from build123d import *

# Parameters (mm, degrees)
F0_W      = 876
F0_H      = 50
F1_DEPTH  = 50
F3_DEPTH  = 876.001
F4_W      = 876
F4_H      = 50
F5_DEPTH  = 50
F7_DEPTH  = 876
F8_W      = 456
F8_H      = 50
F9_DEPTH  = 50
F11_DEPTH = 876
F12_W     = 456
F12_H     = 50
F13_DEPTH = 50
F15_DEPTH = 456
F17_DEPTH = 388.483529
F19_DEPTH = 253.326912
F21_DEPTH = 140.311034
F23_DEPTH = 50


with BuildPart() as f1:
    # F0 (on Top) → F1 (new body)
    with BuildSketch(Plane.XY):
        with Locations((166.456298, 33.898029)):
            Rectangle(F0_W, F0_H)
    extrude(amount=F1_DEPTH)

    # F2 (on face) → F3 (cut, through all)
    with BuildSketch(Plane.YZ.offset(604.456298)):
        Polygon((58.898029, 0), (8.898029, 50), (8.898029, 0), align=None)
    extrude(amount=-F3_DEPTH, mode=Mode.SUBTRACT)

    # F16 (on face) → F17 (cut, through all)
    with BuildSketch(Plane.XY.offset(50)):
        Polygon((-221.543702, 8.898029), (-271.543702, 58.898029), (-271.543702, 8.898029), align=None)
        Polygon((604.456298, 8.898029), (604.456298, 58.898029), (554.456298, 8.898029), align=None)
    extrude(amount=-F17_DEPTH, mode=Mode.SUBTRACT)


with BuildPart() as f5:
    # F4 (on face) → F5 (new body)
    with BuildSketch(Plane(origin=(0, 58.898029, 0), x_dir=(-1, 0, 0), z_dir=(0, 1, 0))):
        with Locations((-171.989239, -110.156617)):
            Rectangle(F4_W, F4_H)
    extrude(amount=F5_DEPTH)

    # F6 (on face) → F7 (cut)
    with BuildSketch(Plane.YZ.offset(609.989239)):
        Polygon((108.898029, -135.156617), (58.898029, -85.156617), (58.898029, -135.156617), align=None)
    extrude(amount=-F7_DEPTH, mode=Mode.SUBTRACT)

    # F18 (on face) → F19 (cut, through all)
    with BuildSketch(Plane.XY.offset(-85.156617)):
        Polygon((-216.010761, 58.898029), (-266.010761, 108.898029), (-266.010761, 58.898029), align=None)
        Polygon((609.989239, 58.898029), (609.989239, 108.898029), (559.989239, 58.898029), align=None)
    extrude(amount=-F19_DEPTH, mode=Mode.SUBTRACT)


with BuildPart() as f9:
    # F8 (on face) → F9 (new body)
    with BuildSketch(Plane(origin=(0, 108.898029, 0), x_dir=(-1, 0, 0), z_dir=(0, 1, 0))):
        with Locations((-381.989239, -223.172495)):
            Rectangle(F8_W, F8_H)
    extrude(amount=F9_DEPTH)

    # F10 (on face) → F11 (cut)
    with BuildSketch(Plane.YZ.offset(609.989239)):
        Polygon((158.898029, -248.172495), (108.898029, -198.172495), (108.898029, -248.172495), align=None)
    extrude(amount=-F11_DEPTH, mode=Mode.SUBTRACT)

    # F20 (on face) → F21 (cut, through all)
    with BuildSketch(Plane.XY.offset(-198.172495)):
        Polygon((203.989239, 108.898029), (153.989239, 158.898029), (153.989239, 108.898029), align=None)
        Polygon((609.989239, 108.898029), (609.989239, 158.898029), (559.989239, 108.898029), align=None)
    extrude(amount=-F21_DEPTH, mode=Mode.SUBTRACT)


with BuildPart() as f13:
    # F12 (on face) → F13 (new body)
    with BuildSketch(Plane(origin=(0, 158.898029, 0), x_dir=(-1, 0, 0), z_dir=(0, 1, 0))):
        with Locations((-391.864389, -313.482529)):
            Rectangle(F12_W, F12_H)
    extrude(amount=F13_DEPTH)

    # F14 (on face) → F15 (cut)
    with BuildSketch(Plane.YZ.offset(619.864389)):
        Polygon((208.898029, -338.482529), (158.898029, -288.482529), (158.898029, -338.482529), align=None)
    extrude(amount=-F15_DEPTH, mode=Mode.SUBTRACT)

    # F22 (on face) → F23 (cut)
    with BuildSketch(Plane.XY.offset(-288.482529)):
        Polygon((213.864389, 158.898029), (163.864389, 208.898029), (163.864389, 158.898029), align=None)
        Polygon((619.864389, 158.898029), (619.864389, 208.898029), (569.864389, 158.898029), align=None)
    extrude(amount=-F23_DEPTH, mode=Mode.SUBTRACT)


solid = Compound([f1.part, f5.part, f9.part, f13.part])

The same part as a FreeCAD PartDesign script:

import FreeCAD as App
import Part
import Sketcher


def add_polygon(sketch, points):
    """Adds a closed chain of lines whose ends are joined by coincident constraints."""
    first, n = sketch.GeometryCount, len(points)
    for a, b in zip(points, points[1:] + points[:1]):
        sketch.addGeometry(Part.LineSegment(App.Vector(*a, 0), App.Vector(*b, 0)), False)
    for i in range(n):
        sketch.addConstraint(Sketcher.Constraint("Coincident", first + i, 2, first + (i + 1) % n, 1))

doc = App.newDocument("Part")
body = doc.addObject("PartDesign::Body", "Body")

# Sketch on XY plane
sketch1 = body.newObject("Sketcher::SketchObject", "Sketch")
sketch1.AttachmentSupport = (doc.getObject("XY_Plane"), [""])
sketch1.MapMode = "FlatFace"
add_polygon(sketch1, [(-272, 59), (-272, 9), (604, 9), (604, 59)])  # lines 0-3
sketch1.addConstraint([
    Sketcher.Constraint("Vertical", 0),
    Sketcher.Constraint("Horizontal", 1),
    Sketcher.Constraint("Vertical", 2),
    Sketcher.Constraint("Horizontal", 3),
    Sketcher.Constraint("DistanceX", 1, 1, 1, 2, 876.0),
    Sketcher.Constraint("DistanceY", 0, 2, 0, 1, 50.0),
    Sketcher.Constraint("DistanceX", 0, 2, -1, 1, 271.543702),
    Sketcher.Constraint("DistanceY", -1, 1, 0, 2, 8.898029),
])
pad1 = body.newObject("PartDesign::Pad", "Pad")
pad1.Profile = sketch1
pad1.Length = 50

# Sketch on YZ plane
sketch2 = body.newObject("Sketcher::SketchObject", "Sketch001")
sketch2.AttachmentSupport = (doc.getObject("YZ_Plane"), [""])
sketch2.MapMode = "FlatFace"
sketch2.AttachmentOffset = App.Placement(App.Vector(0, 0, 604.456298), App.Rotation())
add_polygon(sketch2, [(59, 0), (9, 50), (9, 0)])  # lines 0-2
sketch2.addConstraint([
    Sketcher.Constraint("Vertical", 1),
    Sketcher.Constraint("Horizontal", 2),
    Sketcher.Constraint("PointOnObject", 1, 2, -1),
    Sketcher.Constraint("Equal", 2, 1),
    Sketcher.Constraint("DistanceX", 2, 1, 2, 2, 50.0),
    Sketcher.Constraint("DistanceX", -1, 1, 0, 2, 8.898029),
])
pocket1 = body.newObject("PartDesign::Pocket", "Pocket")
pocket1.Profile = sketch2
pocket1.Type = "ThroughAll"

# Sketch on XY plane
sketch3 = body.newObject("Sketcher::SketchObject", "Sketch002")
sketch3.AttachmentSupport = (doc.getObject("XY_Plane"), [""])
sketch3.MapMode = "FlatFace"
sketch3.AttachmentOffset = App.Placement(App.Vector(0, 0, 50), App.Rotation())
add_polygon(sketch3, [(-222, 9), (-272, 59), (-272, 9)])  # lines 0-2
add_polygon(sketch3, [(604, 9), (604, 59), (554, 9)])  # lines 3-5
sketch3.addConstraint([
    Sketcher.Constraint("Vertical", 1),
    Sketcher.Constraint("Horizontal", 2),
    Sketcher.Constraint("Vertical", 3),
    Sketcher.Constraint("Horizontal", 5),
    Sketcher.Constraint("Perpendicular", 0, 4),
    Sketcher.Constraint("Horizontal", 0, 2, 3, 2),
    Sketcher.Constraint("Horizontal", 2, 2, 4, 2),
    Sketcher.Constraint("Equal", 2, 5),
    Sketcher.Constraint("DistanceX", 2, 1, 2, 2, 50.0),
    Sketcher.Constraint("DistanceX", 2, 2, 3, 2, 826.0),
    Sketcher.Constraint("DistanceX", 0, 2, -1, 1, 271.543702),
    Sketcher.Constraint("DistanceY", -1, 1, 0, 2, 58.898029),
])
pocket2 = body.newObject("PartDesign::Pocket", "Pocket001")
pocket2.Profile = sketch3
pocket2.Type = "ThroughAll"
body2 = doc.addObject("PartDesign::Body", "Body001")

# Sketch on XZ plane
sketch4 = body2.newObject("Sketcher::SketchObject", "Sketch003")
sketch4.AttachmentSupport = (doc.getObject("XZ_Plane001"), [""])
sketch4.MapMode = "FlatFace"
sketch4.AttachmentOffset = App.Placement(App.Vector(0, 0, -58.898029), App.Rotation())
add_polygon(sketch4, [(610, -85), (610, -135), (-266, -135), (-266, -85)])  # lines 0-3
sketch4.addConstraint([
    Sketcher.Constraint("Vertical", 0),
    Sketcher.Constraint("Horizontal", 1),
    Sketcher.Constraint("Vertical", 2),
    Sketcher.Constraint("Horizontal", 3),
    Sketcher.Constraint("DistanceX", 1, 2, 1, 1, 876.0),
    Sketcher.Constraint("DistanceY", 0, 2, 0, 1, 50.0),
    Sketcher.Constraint("DistanceX", -1, 1, 0, 2, 609.989239),
    Sketcher.Constraint("DistanceY", 0, 2, -1, 1, 135.156617),
])
pad2 = body2.newObject("PartDesign::Pad", "Pad001")
pad2.Profile = sketch4
pad2.Length = 50
pad2.Reversed = True

# Sketch on YZ plane
sketch5 = body2.newObject("Sketcher::SketchObject", "Sketch004")
sketch5.AttachmentSupport = (doc.getObject("YZ_Plane001"), [""])
sketch5.MapMode = "FlatFace"
sketch5.AttachmentOffset = App.Placement(App.Vector(0, 0, 609.989239), App.Rotation())
add_polygon(sketch5, [(109, -135), (59, -85), (59, -135)])  # lines 0-2
sketch5.addConstraint([
    Sketcher.Constraint("Vertical", 1),
    Sketcher.Constraint("Horizontal", 2),
    Sketcher.Constraint("Equal", 2, 1),
    Sketcher.Constraint("DistanceX", 2, 1, 2, 2, 50.0),
    Sketcher.Constraint("DistanceX", -1, 1, 0, 2, 58.898029),
    Sketcher.Constraint("DistanceY", 0, 2, -1, 1, 85.156617),
])
pocket3 = body2.newObject("PartDesign::Pocket", "Pocket002")
pocket3.Profile = sketch5
pocket3.Length = 876

# Sketch on XY plane
sketch6 = body2.newObject("Sketcher::SketchObject", "Sketch005")
sketch6.AttachmentSupport = (doc.getObject("XY_Plane001"), [""])
sketch6.MapMode = "FlatFace"
sketch6.AttachmentOffset = App.Placement(App.Vector(0, 0, -85.156617), App.Rotation())
add_polygon(sketch6, [(-216, 59), (-266, 109), (-266, 59)])  # lines 0-2
add_polygon(sketch6, [(610, 59), (610, 109), (560, 59)])  # lines 3-5
sketch6.addConstraint([
    Sketcher.Constraint("Vertical", 1),
    Sketcher.Constraint("Horizontal", 2),
    Sketcher.Constraint("Vertical", 3),
    Sketcher.Constraint("Horizontal", 5),
    Sketcher.Constraint("Perpendicular", 0, 4),
    Sketcher.Constraint("Horizontal", 0, 2, 3, 2),
    Sketcher.Constraint("Horizontal", 2, 2, 4, 2),
    Sketcher.Constraint("Equal", 2, 5),
    Sketcher.Constraint("DistanceX", 2, 1, 2, 2, 50.0),
    Sketcher.Constraint("DistanceX", 2, 2, 3, 2, 826.0),
    Sketcher.Constraint("DistanceX", 0, 2, -1, 1, 266.010761),
    Sketcher.Constraint("DistanceY", -1, 1, 0, 2, 108.898029),
])
pocket4 = body2.newObject("PartDesign::Pocket", "Pocket003")
pocket4.Profile = sketch6
pocket4.Type = "ThroughAll"
body3 = doc.addObject("PartDesign::Body", "Body002")

# Sketch on XZ plane
sketch7 = body3.newObject("Sketcher::SketchObject", "Sketch006")
sketch7.AttachmentSupport = (doc.getObject("XZ_Plane002"), [""])
sketch7.MapMode = "FlatFace"
sketch7.AttachmentOffset = App.Placement(App.Vector(0, 0, -108.898029), App.Rotation())
add_polygon(sketch7, [(610, -198), (610, -248), (154, -248), (154, -198)])  # lines 0-3
sketch7.addConstraint([
    Sketcher.Constraint("Vertical", 0),
    Sketcher.Constraint("Horizontal", 1),
    Sketcher.Constraint("Vertical", 2),
    Sketcher.Constraint("Horizontal", 3),
    Sketcher.Constraint("DistanceX", 1, 2, 1, 1, 456.0),
    Sketcher.Constraint("DistanceY", 0, 2, 0, 1, 50.0),
    Sketcher.Constraint("DistanceX", -1, 1, 0, 2, 609.989239),
    Sketcher.Constraint("DistanceY", 0, 2, -1, 1, 248.172495),
])
pad3 = body3.newObject("PartDesign::Pad", "Pad002")
pad3.Profile = sketch7
pad3.Length = 50
pad3.Reversed = True

# Sketch on YZ plane
sketch8 = body3.newObject("Sketcher::SketchObject", "Sketch007")
sketch8.AttachmentSupport = (doc.getObject("YZ_Plane002"), [""])
sketch8.MapMode = "FlatFace"
sketch8.AttachmentOffset = App.Placement(App.Vector(0, 0, 609.989239), App.Rotation())
add_polygon(sketch8, [(159, -248), (109, -198), (109, -248)])  # lines 0-2
sketch8.addConstraint([
    Sketcher.Constraint("Vertical", 1),
    Sketcher.Constraint("Horizontal", 2),
    Sketcher.Constraint("Equal", 2, 1),
    Sketcher.Constraint("DistanceX", 2, 1, 2, 2, 50.0),
    Sketcher.Constraint("DistanceX", -1, 1, 0, 2, 108.898029),
    Sketcher.Constraint("DistanceY", 0, 2, -1, 1, 198.172495),
])
pocket5 = body3.newObject("PartDesign::Pocket", "Pocket004")
pocket5.Profile = sketch8
pocket5.Length = 876

# Sketch on XY plane
sketch9 = body3.newObject("Sketcher::SketchObject", "Sketch008")
sketch9.AttachmentSupport = (doc.getObject("XY_Plane002"), [""])
sketch9.MapMode = "FlatFace"
sketch9.AttachmentOffset = App.Placement(App.Vector(0, 0, -198.172495), App.Rotation())
add_polygon(sketch9, [(204, 109), (154, 159), (154, 109)])  # lines 0-2
add_polygon(sketch9, [(610, 109), (610, 159), (560, 109)])  # lines 3-5
sketch9.addConstraint([
    Sketcher.Constraint("Vertical", 1),
    Sketcher.Constraint("Horizontal", 2),
    Sketcher.Constraint("Vertical", 3),
    Sketcher.Constraint("Horizontal", 5),
    Sketcher.Constraint("Perpendicular", 0, 4),
    Sketcher.Constraint("Horizontal", 0, 2, 3, 2),
    Sketcher.Constraint("Horizontal", 2, 2, 4, 2),
    Sketcher.Constraint("Equal", 2, 5),
    Sketcher.Constraint("DistanceX", 2, 1, 2, 2, 50.0),
    Sketcher.Constraint("DistanceX", 2, 2, 3, 2, 406.0),
    Sketcher.Constraint("DistanceX", -1, 1, 0, 2, 153.989239),
    Sketcher.Constraint("DistanceY", -1, 1, 0, 2, 158.898029),
])
pocket6 = body3.newObject("PartDesign::Pocket", "Pocket005")
pocket6.Profile = sketch9
pocket6.Type = "ThroughAll"
body4 = doc.addObject("PartDesign::Body", "Body003")

# Sketch on XZ plane
sketch10 = body4.newObject("Sketcher::SketchObject", "Sketch009")
sketch10.AttachmentSupport = (doc.getObject("XZ_Plane003"), [""])
sketch10.MapMode = "FlatFace"
sketch10.AttachmentOffset = App.Placement(App.Vector(0, 0, -158.898029), App.Rotation())
add_polygon(sketch10, [(620, -288), (620, -338), (164, -338), (164, -288)])  # lines 0-3
sketch10.addConstraint([
    Sketcher.Constraint("Vertical", 0),
    Sketcher.Constraint("Horizontal", 1),
    Sketcher.Constraint("Vertical", 2),
    Sketcher.Constraint("Horizontal", 3),
    Sketcher.Constraint("DistanceX", 1, 2, 1, 1, 456.0),
    Sketcher.Constraint("DistanceY", 0, 2, 0, 1, 50.0),
    Sketcher.Constraint("DistanceX", -1, 1, 0, 2, 619.864389),
    Sketcher.Constraint("DistanceY", 0, 2, -1, 1, 338.482529),
])
pad4 = body4.newObject("PartDesign::Pad", "Pad003")
pad4.Profile = sketch10
pad4.Length = 50
pad4.Reversed = True

# Sketch on YZ plane
sketch11 = body4.newObject("Sketcher::SketchObject", "Sketch010")
sketch11.AttachmentSupport = (doc.getObject("YZ_Plane003"), [""])
sketch11.MapMode = "FlatFace"
sketch11.AttachmentOffset = App.Placement(App.Vector(0, 0, 619.864389), App.Rotation())
add_polygon(sketch11, [(209, -338), (159, -288), (159, -338)])  # lines 0-2
sketch11.addConstraint([
    Sketcher.Constraint("Vertical", 1),
    Sketcher.Constraint("Horizontal", 2),
    Sketcher.Constraint("Equal", 2, 1),
    Sketcher.Constraint("DistanceX", 2, 1, 2, 2, 50.0),
    Sketcher.Constraint("DistanceX", -1, 1, 0, 2, 158.898029),
    Sketcher.Constraint("DistanceY", 0, 2, -1, 1, 288.482529),
])
pocket7 = body4.newObject("PartDesign::Pocket", "Pocket006")
pocket7.Profile = sketch11
pocket7.Length = 456

# Sketch on XY plane
sketch12 = body4.newObject("Sketcher::SketchObject", "Sketch011")
sketch12.AttachmentSupport = (doc.getObject("XY_Plane003"), [""])
sketch12.MapMode = "FlatFace"
sketch12.AttachmentOffset = App.Placement(App.Vector(0, 0, -288.482529), App.Rotation())
add_polygon(sketch12, [(214, 159), (164, 209), (164, 159)])  # lines 0-2
add_polygon(sketch12, [(620, 159), (620, 209), (570, 159)])  # lines 3-5
sketch12.addConstraint([
    Sketcher.Constraint("Vertical", 1),
    Sketcher.Constraint("Horizontal", 2),
    Sketcher.Constraint("Vertical", 3),
    Sketcher.Constraint("Horizontal", 5),
    Sketcher.Constraint("Perpendicular", 0, 4),
    Sketcher.Constraint("Horizontal", 0, 2, 3, 2),
    Sketcher.Constraint("Horizontal", 2, 2, 4, 2),
    Sketcher.Constraint("Equal", 2, 5),
    Sketcher.Constraint("DistanceX", 2, 1, 2, 2, 50.0),
    Sketcher.Constraint("DistanceX", 2, 2, 3, 2, 406.0),
    Sketcher.Constraint("DistanceX", -1, 1, 0, 2, 163.864389),
    Sketcher.Constraint("DistanceY", -1, 1, 0, 2, 208.898029),
])
pocket8 = body4.newObject("PartDesign::Pocket", "Pocket007")
pocket8.Profile = sketch12
pocket8.Length = 50

doc.recompute()
